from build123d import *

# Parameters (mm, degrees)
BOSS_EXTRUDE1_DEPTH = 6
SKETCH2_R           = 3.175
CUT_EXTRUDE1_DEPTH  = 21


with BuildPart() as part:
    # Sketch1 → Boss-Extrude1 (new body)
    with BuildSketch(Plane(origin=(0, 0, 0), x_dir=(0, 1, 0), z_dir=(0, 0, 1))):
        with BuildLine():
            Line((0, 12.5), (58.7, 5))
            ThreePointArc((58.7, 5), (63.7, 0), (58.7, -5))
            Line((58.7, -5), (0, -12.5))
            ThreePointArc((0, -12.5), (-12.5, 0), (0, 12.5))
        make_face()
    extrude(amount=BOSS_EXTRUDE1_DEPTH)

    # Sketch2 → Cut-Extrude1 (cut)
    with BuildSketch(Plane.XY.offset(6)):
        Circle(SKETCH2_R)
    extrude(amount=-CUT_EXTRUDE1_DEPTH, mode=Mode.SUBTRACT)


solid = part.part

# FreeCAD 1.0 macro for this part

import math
import FreeCAD as App
import Part
import Sketcher
from FreeCAD import Vector

doc = App.newDocument("Part")
body = doc.addObject("PartDesign::Body", "Body")

# Sketch on XY plane
sketch1 = body.newObject("Sketcher::SketchObject", "Sketch")
sketch1.AttachmentSupport = (doc.getObject("XY_Plane"), [""])
sketch1.MapMode = "FlatFace"
sketch1.addGeometry([
    Part.LineSegment(Vector(-5, 59, 0), Vector(-12, 0, 0)),
    Part.ArcOfCircle(Part.Circle(Vector(0, 0, 0), Vector(0, 0, 1), 12), math.radians(180), math.radians(360)),
    Part.LineSegment(Vector(12, 0, 0), Vector(5, 59, 0)),
    Part.ArcOfCircle(Part.Circle(Vector(0, 59, 0), Vector(0, 0, 1), 5), math.radians(0), math.radians(180)),
], False)
sketch1.addConstraint([
    Sketcher.Constraint("Coincident", 0, 2, 1, 1),
    Sketcher.Constraint("Coincident", 1, 2, 2, 1),
    Sketcher.Constraint("Coincident", 2, 2, 3, 1),
    Sketcher.Constraint("Coincident", 3, 2, 0, 1),
    Sketcher.Constraint("Coincident", 1, 3, -1, 1),
    Sketcher.Constraint("Symmetric", 2, 2, 3, 2, -2),
    Sketcher.Constraint("PointOnObject", 0, 2, -1),
    Sketcher.Constraint("PointOnObject", 1, 2, -1),
    Sketcher.Constraint("Horizontal", 3, 3, 2, 2),
    Sketcher.Constraint("Radius", 3, 5.0),
    Sketcher.Constraint("Radius", 1, 12.5),
    Sketcher.Constraint("DistanceY", -1, 1, 3, 3, 58.7),
])
pad1 = body.newObject("PartDesign::Pad", "Pad")
pad1.Profile = sketch1
pad1.Length = 6

# Sketch on XY plane
sketch2 = body.newObject("Sketcher::SketchObject", "Sketch001")
sketch2.AttachmentSupport = (doc.getObject("XY_Plane"), [""])
sketch2.MapMode = "FlatFace"
sketch2.AttachmentOffset = App.Placement(Vector(0, 0, 6), App.Rotation())
sketch2.addGeometry(Part.Circle(Vector(0, 0, 0), Vector(0, 0, 1), 3.2), False)
sketch2.addConstraint([
    Sketcher.Constraint("Coincident", 0, 3, -1, 1),
    Sketcher.Constraint("Diameter", 0, 6.35),
])
pocket1 = body.newObject("PartDesign::Pocket", "Pocket")
pocket1.Profile = sketch2
pocket1.Length = 21

doc.recompute()
